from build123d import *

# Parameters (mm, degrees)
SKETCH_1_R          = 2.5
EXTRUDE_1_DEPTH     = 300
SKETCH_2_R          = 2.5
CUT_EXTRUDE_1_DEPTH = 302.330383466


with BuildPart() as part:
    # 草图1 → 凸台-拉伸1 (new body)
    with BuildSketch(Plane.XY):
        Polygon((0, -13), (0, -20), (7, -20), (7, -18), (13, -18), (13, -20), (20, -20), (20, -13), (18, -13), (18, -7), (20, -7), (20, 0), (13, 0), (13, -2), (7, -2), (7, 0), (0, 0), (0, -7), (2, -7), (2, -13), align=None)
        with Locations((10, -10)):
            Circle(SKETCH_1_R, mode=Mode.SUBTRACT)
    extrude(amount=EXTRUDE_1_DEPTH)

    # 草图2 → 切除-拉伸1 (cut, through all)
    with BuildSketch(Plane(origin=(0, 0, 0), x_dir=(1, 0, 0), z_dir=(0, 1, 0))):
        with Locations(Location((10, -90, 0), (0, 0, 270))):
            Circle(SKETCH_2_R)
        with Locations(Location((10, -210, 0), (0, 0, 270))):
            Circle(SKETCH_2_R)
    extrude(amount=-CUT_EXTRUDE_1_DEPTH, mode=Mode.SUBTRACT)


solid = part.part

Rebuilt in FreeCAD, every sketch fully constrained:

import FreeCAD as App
import Part
import Sketcher


def add_polygon(sketch, points):
    """Adds a closed chain of lines whose ends are joined by coincident constraints."""
    first, n = sketch.GeometryCount, len(points)
    for a, b in zip(points, points[1:] + points[:1]):
        sketch.addGeometry(Part.LineSegment(App.Vector(*a, 0), App.Vector(*b, 0)), False)
    for i in range(n):
        sketch.addConstraint(Sketcher.Constraint("Coincident", first + i, 2, first + (i + 1) % n, 1))

doc = App.newDocument("Part")
body = doc.addObject("PartDesign::Body", "Body")

sketch1 = doc.addObject("Sketcher::SketchObject", "Sketch")
body.addObject(sketch1)
sketch1.AttachmentSupport = (doc.XY_Plane, [""])
sketch1.MapMode = "FlatFace"
add_polygon(sketch1, [(0, -13), (0, -20), (7, -20), (7, -18), (13, -18), (13, -20), (20, -20), (20, -13), (18, -13), (18, -7), (20, -7), (20, 0), (13, 0), (13, -2), (7, -2), (7, 0), (0, 0), (0, -7), (2, -7), (2, -13)])
sketch1.addGeometry(Part.Circle(App.Vector(10, -10, 0), App.Vector(0, 0, 1), 2.5), False)
sketch1.addConstraint([
    Sketcher.Constraint("Vertical", 0),
    Sketcher.Constraint("Horizontal", 1),
    Sketcher.Constraint("Vertical", 2),
    Sketcher.Constraint("Horizontal", 3),
    Sketcher.Constraint("Vertical", 4),
    Sketcher.Constraint("Horizontal", 5),
    Sketcher.Constraint("Vertical", 6),
    Sketcher.Constraint("Horizontal", 7),
    Sketcher.Constraint("Vertical", 8),
    Sketcher.Constraint("Horizontal", 9),
    Sketcher.Constraint("Vertical", 10),
    Sketcher.Constraint("Horizontal", 11),
    Sketcher.Constraint("Vertical", 12),
    Sketcher.Constraint("Horizontal", 13),
    Sketcher.Constraint("Vertical", 14),
    Sketcher.Constraint("Horizontal", 15),
    Sketcher.Constraint("Vertical", 16),
    Sketcher.Constraint("Horizontal", 17),
    Sketcher.Constraint("Vertical", 18),
    Sketcher.Constraint("Horizontal", 19),
    Sketcher.Constraint("Coincident", 15, 2, -1, 1),
    Sketcher.Constraint("PointOnObject", 0, 2, -2),
    Sketcher.Constraint("PointOnObject", 10, 2, -1),
    Sketcher.Constraint("Horizontal", 1, 2, 4, 2),
    Sketcher.Constraint("Horizontal", 9, 2, 16, 2),
    Sketcher.Constraint("Horizontal", 7, 2, 18, 2),
    Sketcher.Constraint("Vertical", 6, 2, 9, 2),
    Sketcher.Constraint("Vertical", 4, 2, 11, 2),
    Sketcher.Constraint("Vertical", 2, 2, 13, 2),
    Sketcher.Constraint("Equal", 1, 5),
    Sketcher.Constraint("Equal", 9, 17),
    Sketcher.Constraint("Equal", 15, 0),
    Sketcher.Constraint("Equal", 19, 2),
    Sketcher.Constraint("Equal", 13, 8),
    Sketcher.Constraint("Equal", 6, 10),
    Sketcher.Constraint("Equal", 4, 12),
    Sketcher.Constraint("Diameter", 20, 5.0),
    Sketcher.Constraint("DistanceX", 1, 1, 1, 2, 7.0),
    Sketcher.Constraint("DistanceX", 3, 1, 3, 2, 6.0),
    Sketcher.Constraint("DistanceX", 7, 2, 7, 1, 2.0),
    Sketcher.Constraint("DistanceX", -1, 1, 20, 3, 10.0),
    Sketcher.Constraint("DistanceY", 20, 3, -1, 1, 10.0),
])
pad1 = doc.addObject("PartDesign::Pad", "Pad")
body.addObject(pad1)
pad1.Profile = sketch1
pad1.Length = 300

sketch2 = doc.addObject("Sketcher::SketchObject", "Sketch001")
body.addObject(sketch2)
sketch2.AttachmentSupport = (doc.XZ_Plane, [""])
sketch2.MapMode = "FlatFace"
sketch2.addGeometry([
    Part.Circle(App.Vector(10, 90, 0), App.Vector(0, 0, 1), 2.5),
    Part.Circle(App.Vector(10, 210, 0), App.Vector(0, 0, 1), 2.5),
], False)
sketch2.addConstraint([
    Sketcher.Constraint("Equal", 0, 1),
    Sketcher.Constraint("Vertical", 0, 3, 1, 3),
    Sketcher.Constraint("Diameter", 0, 5.0),
    Sketcher.Constraint("DistanceX", -1, 1, 0, 3, 10.0),
    Sketcher.Constraint("DistanceY", -1, 1, 0, 3, 90.0),
    Sketcher.Constraint("DistanceY", -1, 1, 1, 3, 210.0),
])
pocket1 = doc.addObject("PartDesign::Pocket", "Pocket")
body.addObject(pocket1)
pocket1.Profile = sketch2
pocket1.Type = "ThroughAll"
pocket1.Reversed = True

doc.recompute()
